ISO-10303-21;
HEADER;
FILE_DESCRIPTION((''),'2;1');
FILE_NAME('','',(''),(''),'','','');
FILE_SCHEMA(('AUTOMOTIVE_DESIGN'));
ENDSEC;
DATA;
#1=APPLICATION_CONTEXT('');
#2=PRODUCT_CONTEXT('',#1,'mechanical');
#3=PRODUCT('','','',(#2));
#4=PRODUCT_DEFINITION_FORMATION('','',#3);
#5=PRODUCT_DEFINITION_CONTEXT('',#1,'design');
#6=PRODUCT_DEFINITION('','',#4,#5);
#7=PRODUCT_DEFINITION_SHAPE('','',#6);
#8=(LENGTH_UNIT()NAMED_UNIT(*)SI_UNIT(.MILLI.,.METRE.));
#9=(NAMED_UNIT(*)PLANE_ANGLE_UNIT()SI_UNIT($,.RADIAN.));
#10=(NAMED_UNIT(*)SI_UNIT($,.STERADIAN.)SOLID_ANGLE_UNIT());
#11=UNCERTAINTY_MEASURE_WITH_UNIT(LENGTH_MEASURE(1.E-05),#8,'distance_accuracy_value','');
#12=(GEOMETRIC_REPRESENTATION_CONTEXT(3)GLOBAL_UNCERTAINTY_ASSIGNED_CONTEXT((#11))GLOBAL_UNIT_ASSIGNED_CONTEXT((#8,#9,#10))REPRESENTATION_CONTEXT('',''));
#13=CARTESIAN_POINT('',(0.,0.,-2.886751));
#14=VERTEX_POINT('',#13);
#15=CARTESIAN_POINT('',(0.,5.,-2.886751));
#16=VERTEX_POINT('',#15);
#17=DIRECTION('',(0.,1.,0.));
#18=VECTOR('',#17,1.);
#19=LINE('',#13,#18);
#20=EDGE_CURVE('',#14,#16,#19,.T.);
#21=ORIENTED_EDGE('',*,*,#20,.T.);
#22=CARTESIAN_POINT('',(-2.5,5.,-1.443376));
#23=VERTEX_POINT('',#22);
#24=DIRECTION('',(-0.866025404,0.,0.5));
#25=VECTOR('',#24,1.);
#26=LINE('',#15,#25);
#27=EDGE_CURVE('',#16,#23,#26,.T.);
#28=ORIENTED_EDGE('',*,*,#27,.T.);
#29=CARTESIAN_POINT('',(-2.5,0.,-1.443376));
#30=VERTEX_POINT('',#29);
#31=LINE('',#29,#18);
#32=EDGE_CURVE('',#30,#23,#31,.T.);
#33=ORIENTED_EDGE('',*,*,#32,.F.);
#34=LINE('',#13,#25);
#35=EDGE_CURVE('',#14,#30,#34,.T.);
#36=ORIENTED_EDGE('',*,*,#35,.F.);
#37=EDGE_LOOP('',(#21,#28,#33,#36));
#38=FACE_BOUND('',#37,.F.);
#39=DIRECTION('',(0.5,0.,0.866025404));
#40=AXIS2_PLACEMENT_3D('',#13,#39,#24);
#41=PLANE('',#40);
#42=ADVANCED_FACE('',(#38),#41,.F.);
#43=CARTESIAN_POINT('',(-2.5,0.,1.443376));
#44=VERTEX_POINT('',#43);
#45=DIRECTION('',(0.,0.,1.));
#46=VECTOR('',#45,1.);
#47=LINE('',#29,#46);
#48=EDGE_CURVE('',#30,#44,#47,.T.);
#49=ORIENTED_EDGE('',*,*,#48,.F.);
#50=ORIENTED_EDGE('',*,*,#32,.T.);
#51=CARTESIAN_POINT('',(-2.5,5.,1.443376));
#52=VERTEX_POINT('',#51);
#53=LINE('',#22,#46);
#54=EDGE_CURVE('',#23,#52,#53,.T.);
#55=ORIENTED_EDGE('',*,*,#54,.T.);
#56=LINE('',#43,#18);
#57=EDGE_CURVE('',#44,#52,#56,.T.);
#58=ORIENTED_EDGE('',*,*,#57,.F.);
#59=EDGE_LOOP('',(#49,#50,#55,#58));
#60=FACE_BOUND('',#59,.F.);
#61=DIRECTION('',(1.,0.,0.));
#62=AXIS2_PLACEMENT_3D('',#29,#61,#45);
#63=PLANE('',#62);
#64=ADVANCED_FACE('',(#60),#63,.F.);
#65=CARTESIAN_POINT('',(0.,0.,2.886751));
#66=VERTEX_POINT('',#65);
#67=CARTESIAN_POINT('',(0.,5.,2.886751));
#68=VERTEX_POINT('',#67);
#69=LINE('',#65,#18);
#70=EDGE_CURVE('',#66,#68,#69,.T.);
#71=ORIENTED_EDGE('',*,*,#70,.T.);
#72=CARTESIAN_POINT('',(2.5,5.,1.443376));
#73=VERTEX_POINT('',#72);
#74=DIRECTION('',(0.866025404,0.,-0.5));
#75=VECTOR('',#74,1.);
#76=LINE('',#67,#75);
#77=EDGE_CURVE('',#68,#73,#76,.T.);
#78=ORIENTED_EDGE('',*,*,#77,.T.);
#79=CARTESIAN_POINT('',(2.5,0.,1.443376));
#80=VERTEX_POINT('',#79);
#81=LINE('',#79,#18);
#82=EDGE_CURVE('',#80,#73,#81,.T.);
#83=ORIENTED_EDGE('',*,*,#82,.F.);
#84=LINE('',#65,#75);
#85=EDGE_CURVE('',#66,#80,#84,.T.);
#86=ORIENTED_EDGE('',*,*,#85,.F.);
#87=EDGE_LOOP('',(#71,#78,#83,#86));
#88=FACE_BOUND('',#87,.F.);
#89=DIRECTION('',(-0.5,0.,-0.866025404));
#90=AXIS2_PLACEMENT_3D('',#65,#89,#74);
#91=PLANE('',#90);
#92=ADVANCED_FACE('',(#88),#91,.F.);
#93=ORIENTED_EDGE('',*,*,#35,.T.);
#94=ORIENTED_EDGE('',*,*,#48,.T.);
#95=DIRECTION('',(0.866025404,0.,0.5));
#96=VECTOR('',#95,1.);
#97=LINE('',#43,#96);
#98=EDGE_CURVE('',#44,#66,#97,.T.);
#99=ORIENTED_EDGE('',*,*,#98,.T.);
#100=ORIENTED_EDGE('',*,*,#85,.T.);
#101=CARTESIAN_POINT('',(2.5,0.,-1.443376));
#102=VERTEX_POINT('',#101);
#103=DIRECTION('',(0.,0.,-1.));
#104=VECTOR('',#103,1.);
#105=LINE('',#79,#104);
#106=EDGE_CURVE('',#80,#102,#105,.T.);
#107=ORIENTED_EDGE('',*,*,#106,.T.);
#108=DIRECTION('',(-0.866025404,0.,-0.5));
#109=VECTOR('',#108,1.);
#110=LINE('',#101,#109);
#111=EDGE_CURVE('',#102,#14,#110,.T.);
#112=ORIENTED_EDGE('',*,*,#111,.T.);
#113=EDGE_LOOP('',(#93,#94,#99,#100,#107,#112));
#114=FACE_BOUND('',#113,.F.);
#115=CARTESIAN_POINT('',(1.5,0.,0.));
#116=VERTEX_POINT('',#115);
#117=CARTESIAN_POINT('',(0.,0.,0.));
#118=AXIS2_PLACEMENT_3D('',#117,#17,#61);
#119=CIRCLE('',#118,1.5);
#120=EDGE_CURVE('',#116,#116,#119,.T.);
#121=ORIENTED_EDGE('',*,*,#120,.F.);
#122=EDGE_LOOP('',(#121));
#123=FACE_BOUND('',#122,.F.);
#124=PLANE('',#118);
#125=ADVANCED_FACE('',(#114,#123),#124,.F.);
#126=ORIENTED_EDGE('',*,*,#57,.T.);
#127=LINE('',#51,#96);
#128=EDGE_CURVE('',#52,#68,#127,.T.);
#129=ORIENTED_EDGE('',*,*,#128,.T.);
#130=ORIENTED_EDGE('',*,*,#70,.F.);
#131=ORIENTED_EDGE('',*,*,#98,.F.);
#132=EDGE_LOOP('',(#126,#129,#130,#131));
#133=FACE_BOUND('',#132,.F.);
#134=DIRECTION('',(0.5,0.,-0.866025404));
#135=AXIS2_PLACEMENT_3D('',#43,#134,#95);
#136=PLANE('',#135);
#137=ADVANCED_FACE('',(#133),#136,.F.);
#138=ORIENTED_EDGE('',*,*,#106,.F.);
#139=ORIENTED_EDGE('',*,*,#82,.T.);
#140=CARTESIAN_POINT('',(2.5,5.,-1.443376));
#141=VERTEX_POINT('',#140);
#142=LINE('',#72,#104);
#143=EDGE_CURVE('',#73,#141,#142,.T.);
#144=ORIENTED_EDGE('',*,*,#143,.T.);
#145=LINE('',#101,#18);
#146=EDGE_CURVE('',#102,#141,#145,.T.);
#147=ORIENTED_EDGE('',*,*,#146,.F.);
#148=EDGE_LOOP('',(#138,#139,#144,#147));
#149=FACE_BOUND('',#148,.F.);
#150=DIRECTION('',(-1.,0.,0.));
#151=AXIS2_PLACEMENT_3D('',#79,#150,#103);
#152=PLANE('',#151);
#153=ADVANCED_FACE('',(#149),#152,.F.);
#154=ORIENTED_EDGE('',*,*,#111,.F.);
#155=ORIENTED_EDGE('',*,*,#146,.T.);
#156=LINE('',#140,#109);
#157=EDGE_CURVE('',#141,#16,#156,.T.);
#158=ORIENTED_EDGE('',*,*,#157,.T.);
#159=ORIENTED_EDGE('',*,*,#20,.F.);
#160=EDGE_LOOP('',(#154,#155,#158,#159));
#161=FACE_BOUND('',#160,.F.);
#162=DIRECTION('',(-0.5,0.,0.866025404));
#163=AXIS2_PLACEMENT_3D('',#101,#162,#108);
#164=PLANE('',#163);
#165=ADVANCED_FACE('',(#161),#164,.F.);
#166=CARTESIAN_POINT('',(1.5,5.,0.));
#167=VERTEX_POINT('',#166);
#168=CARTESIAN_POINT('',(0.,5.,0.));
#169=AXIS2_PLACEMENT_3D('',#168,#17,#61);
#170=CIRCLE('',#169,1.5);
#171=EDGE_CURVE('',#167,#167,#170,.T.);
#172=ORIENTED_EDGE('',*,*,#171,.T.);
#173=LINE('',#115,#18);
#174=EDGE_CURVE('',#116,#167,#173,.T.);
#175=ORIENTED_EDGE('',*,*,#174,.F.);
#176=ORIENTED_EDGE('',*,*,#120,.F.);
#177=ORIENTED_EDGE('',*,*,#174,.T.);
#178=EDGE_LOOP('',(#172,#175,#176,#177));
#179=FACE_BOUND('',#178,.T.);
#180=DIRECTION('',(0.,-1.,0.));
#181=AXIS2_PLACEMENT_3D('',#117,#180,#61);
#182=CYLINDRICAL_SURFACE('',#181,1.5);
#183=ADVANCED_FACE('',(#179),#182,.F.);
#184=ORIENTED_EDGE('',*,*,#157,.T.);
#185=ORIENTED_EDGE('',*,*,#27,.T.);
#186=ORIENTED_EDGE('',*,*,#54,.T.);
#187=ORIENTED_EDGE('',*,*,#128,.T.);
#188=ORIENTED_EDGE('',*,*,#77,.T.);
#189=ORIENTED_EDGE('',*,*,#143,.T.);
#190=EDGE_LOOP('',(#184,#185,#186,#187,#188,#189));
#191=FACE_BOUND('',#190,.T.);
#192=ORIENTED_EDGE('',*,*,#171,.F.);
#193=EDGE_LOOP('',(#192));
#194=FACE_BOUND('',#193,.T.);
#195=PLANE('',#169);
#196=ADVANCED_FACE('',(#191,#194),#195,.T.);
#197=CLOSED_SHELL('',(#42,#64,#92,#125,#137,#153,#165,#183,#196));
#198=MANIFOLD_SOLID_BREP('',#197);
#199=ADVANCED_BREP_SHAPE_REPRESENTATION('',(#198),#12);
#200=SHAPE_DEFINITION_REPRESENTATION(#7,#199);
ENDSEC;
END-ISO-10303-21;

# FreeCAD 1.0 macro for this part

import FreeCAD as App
import Part
import Sketcher
Q = App.Units.Quantity

doc = App.newDocument("Part")
body = doc.addObject("PartDesign::Body", "Body")

sketch1 = doc.addObject("Sketcher::SketchObject", "Sketch")
body.addObject(sketch1)
sketch1.AttachmentSupport = (doc.XZ_Plane, [""])
sketch1.MapMode = "FlatFace"
sketch1.addGeometry(Part.LineSegment(App.Vector(0, -2.9, 0), App.Vector(-2.5, -1.4, 0)), False)
sketch1.addGeometry(Part.LineSegment(App.Vector(-2.5, -1.4, 0), App.Vector(-2.5, 1.4, 0)), False)
sketch1.addGeometry(Part.LineSegment(App.Vector(-2.5, 1.4, 0), App.Vector(0, 2.9, 0)), False)
sketch1.addGeometry(Part.LineSegment(App.Vector(0, 2.9, 0), App.Vector(2.5, 1.4, 0)), False)
sketch1.addGeometry(Part.LineSegment(App.Vector(2.5, 1.4, 0), App.Vector(2.5, -1.4, 0)), False)
sketch1.addGeometry(Part.LineSegment(App.Vector(2.5, -1.4, 0), App.Vector(0, -2.9, 0)), False)
sketch1.addGeometry(Part.Circle(App.Vector(0, 0, 0), App.Vector(0, 0, 1), 1.5), False)
sketch1.addConstraint(Sketcher.Constraint("Coincident", 0, 2, 1, 1))
sketch1.addConstraint(Sketcher.Constraint("Coincident", 1, 2, 2, 1))
sketch1.addConstraint(Sketcher.Constraint("Coincident", 2, 2, 3, 1))
sketch1.addConstraint(Sketcher.Constraint("Coincident", 3, 2, 4, 1))
sketch1.addConstraint(Sketcher.Constraint("Coincident", 4, 2, 5, 1))
sketch1.addConstraint(Sketcher.Constraint("Coincident", 5, 2, 0, 1))
sketch1.addConstraint(Sketcher.Constraint("Vertical", 1))
sketch1.addConstraint(Sketcher.Constraint("Vertical", 4))
sketch1.addConstraint(Sketcher.Constraint("Coincident", 6, 3, -1, 1))
sketch1.addConstraint(Sketcher.Constraint("Symmetric", 0, 2, 3, 2, -1, 1))
sketch1.addConstraint(Sketcher.Constraint("Symmetric", 2, 2, 5, 2, -1, 1))
sketch1.addConstraint(Sketcher.Constraint("PointOnObject", 2, 2, -2))
sketch1.addConstraint(Sketcher.Constraint("Parallel", 2, 5))
sketch1.addConstraint(Sketcher.Constraint("Horizontal", 1, 2, 3, 2))
sketch1.addConstraint(Sketcher.Constraint("Diameter", 6, Q("3 mm")))
sketch1.addConstraint(Sketcher.Constraint("Angle", 0, Q("150 deg")))
sketch1.addConstraint(Sketcher.Constraint("DistanceX", 1, 2, 3, 2, Q("5 mm")))
sketch1.addConstraint(Sketcher.Constraint("DistanceY", 1, 1, 1, 2, Q("2.886751 mm")))
pad1 = doc.addObject("PartDesign::Pad", "Pad")
body.addObject(pad1)
pad1.Profile = sketch1
pad1.Length = 5
pad1.Reversed = True

doc.recompute()
